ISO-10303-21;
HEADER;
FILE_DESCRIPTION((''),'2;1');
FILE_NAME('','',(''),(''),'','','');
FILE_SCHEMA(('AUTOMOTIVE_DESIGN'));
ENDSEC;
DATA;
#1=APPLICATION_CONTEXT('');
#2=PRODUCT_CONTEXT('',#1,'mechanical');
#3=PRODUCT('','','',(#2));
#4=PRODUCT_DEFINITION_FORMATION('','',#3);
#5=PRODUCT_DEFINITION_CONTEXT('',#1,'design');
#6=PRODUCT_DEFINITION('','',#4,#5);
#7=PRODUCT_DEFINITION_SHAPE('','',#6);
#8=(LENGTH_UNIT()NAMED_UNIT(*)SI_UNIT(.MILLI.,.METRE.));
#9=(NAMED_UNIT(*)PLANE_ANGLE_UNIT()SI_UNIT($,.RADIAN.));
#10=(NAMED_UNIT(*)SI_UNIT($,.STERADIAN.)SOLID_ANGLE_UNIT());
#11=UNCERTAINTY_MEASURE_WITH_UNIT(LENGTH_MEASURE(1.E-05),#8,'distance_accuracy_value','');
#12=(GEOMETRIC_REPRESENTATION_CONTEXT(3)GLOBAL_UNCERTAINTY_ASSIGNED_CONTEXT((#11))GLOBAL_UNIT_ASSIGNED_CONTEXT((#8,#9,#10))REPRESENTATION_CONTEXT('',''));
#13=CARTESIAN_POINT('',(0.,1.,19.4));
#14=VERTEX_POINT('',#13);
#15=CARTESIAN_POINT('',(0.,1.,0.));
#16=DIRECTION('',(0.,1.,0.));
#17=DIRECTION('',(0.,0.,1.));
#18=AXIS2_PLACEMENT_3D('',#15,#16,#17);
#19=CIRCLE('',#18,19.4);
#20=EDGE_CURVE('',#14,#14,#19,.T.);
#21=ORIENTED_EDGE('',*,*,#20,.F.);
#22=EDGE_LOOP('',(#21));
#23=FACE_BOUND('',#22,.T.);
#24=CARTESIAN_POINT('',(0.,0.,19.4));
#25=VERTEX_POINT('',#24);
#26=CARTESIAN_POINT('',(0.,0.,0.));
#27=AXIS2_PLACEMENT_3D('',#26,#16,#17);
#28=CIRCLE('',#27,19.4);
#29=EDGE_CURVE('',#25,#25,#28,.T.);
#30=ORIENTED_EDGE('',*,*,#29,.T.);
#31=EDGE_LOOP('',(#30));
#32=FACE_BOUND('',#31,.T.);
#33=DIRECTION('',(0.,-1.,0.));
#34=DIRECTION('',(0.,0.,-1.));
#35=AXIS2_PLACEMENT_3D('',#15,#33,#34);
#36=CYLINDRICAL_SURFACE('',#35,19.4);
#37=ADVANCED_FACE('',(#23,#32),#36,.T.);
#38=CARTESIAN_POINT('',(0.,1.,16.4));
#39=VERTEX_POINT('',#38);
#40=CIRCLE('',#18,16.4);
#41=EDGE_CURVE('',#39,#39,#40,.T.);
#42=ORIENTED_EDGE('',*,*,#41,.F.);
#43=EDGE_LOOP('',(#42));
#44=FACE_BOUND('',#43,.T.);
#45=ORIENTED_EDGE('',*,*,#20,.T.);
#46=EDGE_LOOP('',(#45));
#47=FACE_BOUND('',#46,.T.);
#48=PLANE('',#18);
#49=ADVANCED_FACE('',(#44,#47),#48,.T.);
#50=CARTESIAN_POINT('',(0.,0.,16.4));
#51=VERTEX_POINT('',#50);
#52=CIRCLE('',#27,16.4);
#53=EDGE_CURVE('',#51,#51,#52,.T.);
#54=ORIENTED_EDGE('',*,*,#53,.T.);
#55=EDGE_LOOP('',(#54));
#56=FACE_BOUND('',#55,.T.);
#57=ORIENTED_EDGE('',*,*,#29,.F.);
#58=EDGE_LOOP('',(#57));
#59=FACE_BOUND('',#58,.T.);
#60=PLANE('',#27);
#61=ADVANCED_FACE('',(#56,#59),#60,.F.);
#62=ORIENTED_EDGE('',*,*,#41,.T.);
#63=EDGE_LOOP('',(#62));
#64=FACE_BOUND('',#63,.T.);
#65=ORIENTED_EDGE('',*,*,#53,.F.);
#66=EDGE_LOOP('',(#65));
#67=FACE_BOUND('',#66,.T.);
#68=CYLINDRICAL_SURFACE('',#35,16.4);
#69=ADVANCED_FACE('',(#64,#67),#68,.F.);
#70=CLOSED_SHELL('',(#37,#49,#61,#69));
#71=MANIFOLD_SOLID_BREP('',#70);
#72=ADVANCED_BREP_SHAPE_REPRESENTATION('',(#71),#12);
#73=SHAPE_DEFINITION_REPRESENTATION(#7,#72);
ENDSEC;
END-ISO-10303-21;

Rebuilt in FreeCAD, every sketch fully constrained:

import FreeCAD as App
import Part
import Sketcher

doc = App.newDocument("Part")
body = doc.addObject("PartDesign::Body", "Body")

# Sketch on XZ plane
sketch1 = doc.addObject("Sketcher::SketchObject", "Sketch")
body.addObject(sketch1)
sketch1.AttachmentSupport = (doc.XZ_Plane, [""])
sketch1.MapMode = "FlatFace"
sketch1.addGeometry([
    Part.Circle(App.Vector(0, 0, 0), App.Vector(0, 0, 1), 19),
    Part.Circle(App.Vector(0, 0, 0), App.Vector(0, 0, 1), 16),
], False)
sketch1.addConstraint([
    Sketcher.Constraint("Coincident", 0, 3, -1, 1),
    Sketcher.Constraint("Coincident", 1, 3, -1, 1),
    Sketcher.Constraint("Diameter", 0, 38.8),
    Sketcher.Constraint("Diameter", 1, 32.8),
])
pad1 = doc.addObject("PartDesign::Pad", "Pad")
body.addObject(pad1)
pad1.Profile = sketch1
pad1.Length = 1
pad1.Reversed = True

doc.recompute()
